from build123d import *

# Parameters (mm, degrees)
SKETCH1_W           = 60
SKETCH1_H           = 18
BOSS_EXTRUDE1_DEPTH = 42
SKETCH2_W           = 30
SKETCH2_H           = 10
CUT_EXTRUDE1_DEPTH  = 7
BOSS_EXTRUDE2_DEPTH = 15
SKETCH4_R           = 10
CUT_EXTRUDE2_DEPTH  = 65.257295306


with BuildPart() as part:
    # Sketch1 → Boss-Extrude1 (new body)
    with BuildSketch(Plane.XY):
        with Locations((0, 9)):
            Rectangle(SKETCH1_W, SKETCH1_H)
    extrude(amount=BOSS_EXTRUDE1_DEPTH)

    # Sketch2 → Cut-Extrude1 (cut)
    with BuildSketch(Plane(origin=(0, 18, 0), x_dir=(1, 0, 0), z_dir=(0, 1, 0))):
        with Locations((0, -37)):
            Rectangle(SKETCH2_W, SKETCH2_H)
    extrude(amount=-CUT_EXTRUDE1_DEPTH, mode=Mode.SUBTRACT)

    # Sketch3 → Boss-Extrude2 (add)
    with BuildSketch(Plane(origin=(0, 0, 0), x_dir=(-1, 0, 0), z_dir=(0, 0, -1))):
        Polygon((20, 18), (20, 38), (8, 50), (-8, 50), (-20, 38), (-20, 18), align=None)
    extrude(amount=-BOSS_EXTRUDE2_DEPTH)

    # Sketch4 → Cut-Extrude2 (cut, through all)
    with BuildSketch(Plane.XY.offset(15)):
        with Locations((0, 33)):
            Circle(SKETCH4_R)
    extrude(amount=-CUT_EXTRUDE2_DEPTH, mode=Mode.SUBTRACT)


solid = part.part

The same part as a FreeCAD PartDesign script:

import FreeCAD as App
import Part
import Sketcher
from FreeCAD import Vector

doc = App.newDocument("Part")
body = doc.addObject("PartDesign::Body", "Body")

sketch1 = body.newObject("Sketcher::SketchObject", "Sketch")
sketch1.AttachmentSupport = (doc.getObject("XY_Plane"), [""])
sketch1.MapMode = "FlatFace"
sketch1.addGeometry([
    Part.LineSegment(Vector(-30, 18, 0), Vector(-30, 0, 0)),
    Part.LineSegment(Vector(-30, 0, 0), Vector(30, 0, 0)),
    Part.LineSegment(Vector(30, 0, 0), Vector(30, 18, 0)),
    Part.LineSegment(Vector(30, 18, 0), Vector(-30, 18, 0)),
], False)
sketch1.addConstraint([
    Sketcher.Constraint("Coincident", 0, 2, 1, 1),
    Sketcher.Constraint("Coincident", 1, 2, 2, 1),
    Sketcher.Constraint("Coincident", 2, 2, 3, 1),
    Sketcher.Constraint("Coincident", 3, 2, 0, 1),
    Sketcher.Constraint("Vertical", 0),
    Sketcher.Constraint("Horizontal", 1),
    Sketcher.Constraint("Vertical", 2),
    Sketcher.Constraint("Horizontal", 3),
    Sketcher.Constraint("Symmetric", 0, 2, 1, 2, -1, 1),
    Sketcher.Constraint("DistanceX", 1, 1, 1, 2, 60.0),
    Sketcher.Constraint("DistanceY", 0, 2, 0, 1, 18.0),
])
pad1 = body.newObject("PartDesign::Pad", "Pad")
pad1.Profile = sketch1
pad1.Length = 42

sketch2 = body.newObject("Sketcher::SketchObject", "Sketch001")
sketch2.AttachmentSupport = (doc.getObject("XZ_Plane"), [""])
sketch2.MapMode = "FlatFace"
sketch2.AttachmentOffset = App.Placement(Vector(0, 0, -18), App.Rotation())
sketch2.addGeometry([
    Part.LineSegment(Vector(-15, 32, 0), Vector(-15, 42, 0)),
    Part.LineSegment(Vector(-15, 42, 0), Vector(15, 42, 0)),
    Part.LineSegment(Vector(15, 42, 0), Vector(15, 32, 0)),
    Part.LineSegment(Vector(15, 32, 0), Vector(-15, 32, 0)),
], False)
sketch2.addConstraint([
    Sketcher.Constraint("Coincident", 0, 2, 1, 1),
    Sketcher.Constraint("Coincident", 1, 2, 2, 1),
    Sketcher.Constraint("Coincident", 2, 2, 3, 1),
    Sketcher.Constraint("Coincident", 3, 2, 0, 1),
    Sketcher.Constraint("Vertical", 0),
    Sketcher.Constraint("Horizontal", 1),
    Sketcher.Constraint("Vertical", 2),
    Sketcher.Constraint("Horizontal", 3),
    Sketcher.Constraint("DistanceX", 1, 1, 1, 2, 30.0),
    Sketcher.Constraint("DistanceY", 0, 1, 0, 2, 10.0),
    Sketcher.Constraint("DistanceX", 0, 2, -1, 1, 15.0),
    Sketcher.Constraint("DistanceY", -1, 1, 0, 2, 42.0),
])
pocket1 = body.newObject("PartDesign::Pocket", "Pocket")
pocket1.Profile = sketch2
pocket1.Length = 7
pocket1.Reversed = True

sketch3 = body.newObject("Sketcher::SketchObject", "Sketch002")
sketch3.AttachmentSupport = (doc.getObject("XY_Plane"), [""])
sketch3.MapMode = "FlatFace"
sketch3.addGeometry([
    Part.LineSegment(Vector(-20, 18, 0), Vector(-20, 38, 0)),
    Part.LineSegment(Vector(-20, 38, 0), Vector(-8, 50, 0)),
    Part.LineSegment(Vector(-8, 50, 0), Vector(8, 50, 0)),
    Part.LineSegment(Vector(8, 50, 0), Vector(20, 38, 0)),
    Part.LineSegment(Vector(20, 38, 0), Vector(20, 18, 0)),
    Part.LineSegment(Vector(20, 18, 0), Vector(-20, 18, 0)),
], False)
sketch3.addConstraint([
    Sketcher.Constraint("Coincident", 0, 2, 1, 1),
    Sketcher.Constraint("Coincident", 1, 2, 2, 1),
    Sketcher.Constraint("Coincident", 2, 2, 3, 1),
    Sketcher.Constraint("Coincident", 3, 2, 4, 1),
    Sketcher.Constraint("Coincident", 4, 2, 5, 1),
    Sketcher.Constraint("Coincident", 5, 2, 0, 1),
    Sketcher.Constraint("Vertical", 0),
    Sketcher.Constraint("Horizontal", 2),
    Sketcher.Constraint("Vertical", 4),
    Sketcher.Constraint("Horizontal", 5),
    Sketcher.Constraint("Symmetric", 0, 2, 3, 2, -2),
    Sketcher.Constraint("Perpendicular", 1, 3),
    Sketcher.Constraint("Equal", 1, 3),
    Sketcher.Constraint("DistanceX", 2, 1, 2, 2, 16.0),
    Sketcher.Constraint("DistanceX", 5, 2, 5, 1, 40.0),
    Sketcher.Constraint("DistanceY", 0, 1, 0, 2, 20.0),
    Sketcher.Constraint("DistanceY", -1, 1, 0, 2, 38.0),
])
pad2 = body.newObject("PartDesign::Pad", "Pad001")
pad2.Profile = sketch3
pad2.Length = 15

sketch4 = body.newObject("Sketcher::SketchObject", "Sketch003")
sketch4.AttachmentSupport = (doc.getObject("XY_Plane"), [""])
sketch4.MapMode = "FlatFace"
sketch4.AttachmentOffset = App.Placement(Vector(0, 0, 15), App.Rotation())
sketch4.addGeometry(Part.Circle(Vector(0, 33, 0), Vector(0, 0, 1), 10), False)
sketch4.addConstraint([
    Sketcher.Constraint("PointOnObject", 0, 3, -2),
    Sketcher.Constraint("Diameter", 0, 20.0),
    Sketcher.Constraint("DistanceY", -1, 1, 0, 3, 33.0),
])
pocket2 = body.newObject("PartDesign::Pocket", "Pocket001")
pocket2.Profile = sketch4
pocket2.Type = "ThroughAll"

doc.recompute()
